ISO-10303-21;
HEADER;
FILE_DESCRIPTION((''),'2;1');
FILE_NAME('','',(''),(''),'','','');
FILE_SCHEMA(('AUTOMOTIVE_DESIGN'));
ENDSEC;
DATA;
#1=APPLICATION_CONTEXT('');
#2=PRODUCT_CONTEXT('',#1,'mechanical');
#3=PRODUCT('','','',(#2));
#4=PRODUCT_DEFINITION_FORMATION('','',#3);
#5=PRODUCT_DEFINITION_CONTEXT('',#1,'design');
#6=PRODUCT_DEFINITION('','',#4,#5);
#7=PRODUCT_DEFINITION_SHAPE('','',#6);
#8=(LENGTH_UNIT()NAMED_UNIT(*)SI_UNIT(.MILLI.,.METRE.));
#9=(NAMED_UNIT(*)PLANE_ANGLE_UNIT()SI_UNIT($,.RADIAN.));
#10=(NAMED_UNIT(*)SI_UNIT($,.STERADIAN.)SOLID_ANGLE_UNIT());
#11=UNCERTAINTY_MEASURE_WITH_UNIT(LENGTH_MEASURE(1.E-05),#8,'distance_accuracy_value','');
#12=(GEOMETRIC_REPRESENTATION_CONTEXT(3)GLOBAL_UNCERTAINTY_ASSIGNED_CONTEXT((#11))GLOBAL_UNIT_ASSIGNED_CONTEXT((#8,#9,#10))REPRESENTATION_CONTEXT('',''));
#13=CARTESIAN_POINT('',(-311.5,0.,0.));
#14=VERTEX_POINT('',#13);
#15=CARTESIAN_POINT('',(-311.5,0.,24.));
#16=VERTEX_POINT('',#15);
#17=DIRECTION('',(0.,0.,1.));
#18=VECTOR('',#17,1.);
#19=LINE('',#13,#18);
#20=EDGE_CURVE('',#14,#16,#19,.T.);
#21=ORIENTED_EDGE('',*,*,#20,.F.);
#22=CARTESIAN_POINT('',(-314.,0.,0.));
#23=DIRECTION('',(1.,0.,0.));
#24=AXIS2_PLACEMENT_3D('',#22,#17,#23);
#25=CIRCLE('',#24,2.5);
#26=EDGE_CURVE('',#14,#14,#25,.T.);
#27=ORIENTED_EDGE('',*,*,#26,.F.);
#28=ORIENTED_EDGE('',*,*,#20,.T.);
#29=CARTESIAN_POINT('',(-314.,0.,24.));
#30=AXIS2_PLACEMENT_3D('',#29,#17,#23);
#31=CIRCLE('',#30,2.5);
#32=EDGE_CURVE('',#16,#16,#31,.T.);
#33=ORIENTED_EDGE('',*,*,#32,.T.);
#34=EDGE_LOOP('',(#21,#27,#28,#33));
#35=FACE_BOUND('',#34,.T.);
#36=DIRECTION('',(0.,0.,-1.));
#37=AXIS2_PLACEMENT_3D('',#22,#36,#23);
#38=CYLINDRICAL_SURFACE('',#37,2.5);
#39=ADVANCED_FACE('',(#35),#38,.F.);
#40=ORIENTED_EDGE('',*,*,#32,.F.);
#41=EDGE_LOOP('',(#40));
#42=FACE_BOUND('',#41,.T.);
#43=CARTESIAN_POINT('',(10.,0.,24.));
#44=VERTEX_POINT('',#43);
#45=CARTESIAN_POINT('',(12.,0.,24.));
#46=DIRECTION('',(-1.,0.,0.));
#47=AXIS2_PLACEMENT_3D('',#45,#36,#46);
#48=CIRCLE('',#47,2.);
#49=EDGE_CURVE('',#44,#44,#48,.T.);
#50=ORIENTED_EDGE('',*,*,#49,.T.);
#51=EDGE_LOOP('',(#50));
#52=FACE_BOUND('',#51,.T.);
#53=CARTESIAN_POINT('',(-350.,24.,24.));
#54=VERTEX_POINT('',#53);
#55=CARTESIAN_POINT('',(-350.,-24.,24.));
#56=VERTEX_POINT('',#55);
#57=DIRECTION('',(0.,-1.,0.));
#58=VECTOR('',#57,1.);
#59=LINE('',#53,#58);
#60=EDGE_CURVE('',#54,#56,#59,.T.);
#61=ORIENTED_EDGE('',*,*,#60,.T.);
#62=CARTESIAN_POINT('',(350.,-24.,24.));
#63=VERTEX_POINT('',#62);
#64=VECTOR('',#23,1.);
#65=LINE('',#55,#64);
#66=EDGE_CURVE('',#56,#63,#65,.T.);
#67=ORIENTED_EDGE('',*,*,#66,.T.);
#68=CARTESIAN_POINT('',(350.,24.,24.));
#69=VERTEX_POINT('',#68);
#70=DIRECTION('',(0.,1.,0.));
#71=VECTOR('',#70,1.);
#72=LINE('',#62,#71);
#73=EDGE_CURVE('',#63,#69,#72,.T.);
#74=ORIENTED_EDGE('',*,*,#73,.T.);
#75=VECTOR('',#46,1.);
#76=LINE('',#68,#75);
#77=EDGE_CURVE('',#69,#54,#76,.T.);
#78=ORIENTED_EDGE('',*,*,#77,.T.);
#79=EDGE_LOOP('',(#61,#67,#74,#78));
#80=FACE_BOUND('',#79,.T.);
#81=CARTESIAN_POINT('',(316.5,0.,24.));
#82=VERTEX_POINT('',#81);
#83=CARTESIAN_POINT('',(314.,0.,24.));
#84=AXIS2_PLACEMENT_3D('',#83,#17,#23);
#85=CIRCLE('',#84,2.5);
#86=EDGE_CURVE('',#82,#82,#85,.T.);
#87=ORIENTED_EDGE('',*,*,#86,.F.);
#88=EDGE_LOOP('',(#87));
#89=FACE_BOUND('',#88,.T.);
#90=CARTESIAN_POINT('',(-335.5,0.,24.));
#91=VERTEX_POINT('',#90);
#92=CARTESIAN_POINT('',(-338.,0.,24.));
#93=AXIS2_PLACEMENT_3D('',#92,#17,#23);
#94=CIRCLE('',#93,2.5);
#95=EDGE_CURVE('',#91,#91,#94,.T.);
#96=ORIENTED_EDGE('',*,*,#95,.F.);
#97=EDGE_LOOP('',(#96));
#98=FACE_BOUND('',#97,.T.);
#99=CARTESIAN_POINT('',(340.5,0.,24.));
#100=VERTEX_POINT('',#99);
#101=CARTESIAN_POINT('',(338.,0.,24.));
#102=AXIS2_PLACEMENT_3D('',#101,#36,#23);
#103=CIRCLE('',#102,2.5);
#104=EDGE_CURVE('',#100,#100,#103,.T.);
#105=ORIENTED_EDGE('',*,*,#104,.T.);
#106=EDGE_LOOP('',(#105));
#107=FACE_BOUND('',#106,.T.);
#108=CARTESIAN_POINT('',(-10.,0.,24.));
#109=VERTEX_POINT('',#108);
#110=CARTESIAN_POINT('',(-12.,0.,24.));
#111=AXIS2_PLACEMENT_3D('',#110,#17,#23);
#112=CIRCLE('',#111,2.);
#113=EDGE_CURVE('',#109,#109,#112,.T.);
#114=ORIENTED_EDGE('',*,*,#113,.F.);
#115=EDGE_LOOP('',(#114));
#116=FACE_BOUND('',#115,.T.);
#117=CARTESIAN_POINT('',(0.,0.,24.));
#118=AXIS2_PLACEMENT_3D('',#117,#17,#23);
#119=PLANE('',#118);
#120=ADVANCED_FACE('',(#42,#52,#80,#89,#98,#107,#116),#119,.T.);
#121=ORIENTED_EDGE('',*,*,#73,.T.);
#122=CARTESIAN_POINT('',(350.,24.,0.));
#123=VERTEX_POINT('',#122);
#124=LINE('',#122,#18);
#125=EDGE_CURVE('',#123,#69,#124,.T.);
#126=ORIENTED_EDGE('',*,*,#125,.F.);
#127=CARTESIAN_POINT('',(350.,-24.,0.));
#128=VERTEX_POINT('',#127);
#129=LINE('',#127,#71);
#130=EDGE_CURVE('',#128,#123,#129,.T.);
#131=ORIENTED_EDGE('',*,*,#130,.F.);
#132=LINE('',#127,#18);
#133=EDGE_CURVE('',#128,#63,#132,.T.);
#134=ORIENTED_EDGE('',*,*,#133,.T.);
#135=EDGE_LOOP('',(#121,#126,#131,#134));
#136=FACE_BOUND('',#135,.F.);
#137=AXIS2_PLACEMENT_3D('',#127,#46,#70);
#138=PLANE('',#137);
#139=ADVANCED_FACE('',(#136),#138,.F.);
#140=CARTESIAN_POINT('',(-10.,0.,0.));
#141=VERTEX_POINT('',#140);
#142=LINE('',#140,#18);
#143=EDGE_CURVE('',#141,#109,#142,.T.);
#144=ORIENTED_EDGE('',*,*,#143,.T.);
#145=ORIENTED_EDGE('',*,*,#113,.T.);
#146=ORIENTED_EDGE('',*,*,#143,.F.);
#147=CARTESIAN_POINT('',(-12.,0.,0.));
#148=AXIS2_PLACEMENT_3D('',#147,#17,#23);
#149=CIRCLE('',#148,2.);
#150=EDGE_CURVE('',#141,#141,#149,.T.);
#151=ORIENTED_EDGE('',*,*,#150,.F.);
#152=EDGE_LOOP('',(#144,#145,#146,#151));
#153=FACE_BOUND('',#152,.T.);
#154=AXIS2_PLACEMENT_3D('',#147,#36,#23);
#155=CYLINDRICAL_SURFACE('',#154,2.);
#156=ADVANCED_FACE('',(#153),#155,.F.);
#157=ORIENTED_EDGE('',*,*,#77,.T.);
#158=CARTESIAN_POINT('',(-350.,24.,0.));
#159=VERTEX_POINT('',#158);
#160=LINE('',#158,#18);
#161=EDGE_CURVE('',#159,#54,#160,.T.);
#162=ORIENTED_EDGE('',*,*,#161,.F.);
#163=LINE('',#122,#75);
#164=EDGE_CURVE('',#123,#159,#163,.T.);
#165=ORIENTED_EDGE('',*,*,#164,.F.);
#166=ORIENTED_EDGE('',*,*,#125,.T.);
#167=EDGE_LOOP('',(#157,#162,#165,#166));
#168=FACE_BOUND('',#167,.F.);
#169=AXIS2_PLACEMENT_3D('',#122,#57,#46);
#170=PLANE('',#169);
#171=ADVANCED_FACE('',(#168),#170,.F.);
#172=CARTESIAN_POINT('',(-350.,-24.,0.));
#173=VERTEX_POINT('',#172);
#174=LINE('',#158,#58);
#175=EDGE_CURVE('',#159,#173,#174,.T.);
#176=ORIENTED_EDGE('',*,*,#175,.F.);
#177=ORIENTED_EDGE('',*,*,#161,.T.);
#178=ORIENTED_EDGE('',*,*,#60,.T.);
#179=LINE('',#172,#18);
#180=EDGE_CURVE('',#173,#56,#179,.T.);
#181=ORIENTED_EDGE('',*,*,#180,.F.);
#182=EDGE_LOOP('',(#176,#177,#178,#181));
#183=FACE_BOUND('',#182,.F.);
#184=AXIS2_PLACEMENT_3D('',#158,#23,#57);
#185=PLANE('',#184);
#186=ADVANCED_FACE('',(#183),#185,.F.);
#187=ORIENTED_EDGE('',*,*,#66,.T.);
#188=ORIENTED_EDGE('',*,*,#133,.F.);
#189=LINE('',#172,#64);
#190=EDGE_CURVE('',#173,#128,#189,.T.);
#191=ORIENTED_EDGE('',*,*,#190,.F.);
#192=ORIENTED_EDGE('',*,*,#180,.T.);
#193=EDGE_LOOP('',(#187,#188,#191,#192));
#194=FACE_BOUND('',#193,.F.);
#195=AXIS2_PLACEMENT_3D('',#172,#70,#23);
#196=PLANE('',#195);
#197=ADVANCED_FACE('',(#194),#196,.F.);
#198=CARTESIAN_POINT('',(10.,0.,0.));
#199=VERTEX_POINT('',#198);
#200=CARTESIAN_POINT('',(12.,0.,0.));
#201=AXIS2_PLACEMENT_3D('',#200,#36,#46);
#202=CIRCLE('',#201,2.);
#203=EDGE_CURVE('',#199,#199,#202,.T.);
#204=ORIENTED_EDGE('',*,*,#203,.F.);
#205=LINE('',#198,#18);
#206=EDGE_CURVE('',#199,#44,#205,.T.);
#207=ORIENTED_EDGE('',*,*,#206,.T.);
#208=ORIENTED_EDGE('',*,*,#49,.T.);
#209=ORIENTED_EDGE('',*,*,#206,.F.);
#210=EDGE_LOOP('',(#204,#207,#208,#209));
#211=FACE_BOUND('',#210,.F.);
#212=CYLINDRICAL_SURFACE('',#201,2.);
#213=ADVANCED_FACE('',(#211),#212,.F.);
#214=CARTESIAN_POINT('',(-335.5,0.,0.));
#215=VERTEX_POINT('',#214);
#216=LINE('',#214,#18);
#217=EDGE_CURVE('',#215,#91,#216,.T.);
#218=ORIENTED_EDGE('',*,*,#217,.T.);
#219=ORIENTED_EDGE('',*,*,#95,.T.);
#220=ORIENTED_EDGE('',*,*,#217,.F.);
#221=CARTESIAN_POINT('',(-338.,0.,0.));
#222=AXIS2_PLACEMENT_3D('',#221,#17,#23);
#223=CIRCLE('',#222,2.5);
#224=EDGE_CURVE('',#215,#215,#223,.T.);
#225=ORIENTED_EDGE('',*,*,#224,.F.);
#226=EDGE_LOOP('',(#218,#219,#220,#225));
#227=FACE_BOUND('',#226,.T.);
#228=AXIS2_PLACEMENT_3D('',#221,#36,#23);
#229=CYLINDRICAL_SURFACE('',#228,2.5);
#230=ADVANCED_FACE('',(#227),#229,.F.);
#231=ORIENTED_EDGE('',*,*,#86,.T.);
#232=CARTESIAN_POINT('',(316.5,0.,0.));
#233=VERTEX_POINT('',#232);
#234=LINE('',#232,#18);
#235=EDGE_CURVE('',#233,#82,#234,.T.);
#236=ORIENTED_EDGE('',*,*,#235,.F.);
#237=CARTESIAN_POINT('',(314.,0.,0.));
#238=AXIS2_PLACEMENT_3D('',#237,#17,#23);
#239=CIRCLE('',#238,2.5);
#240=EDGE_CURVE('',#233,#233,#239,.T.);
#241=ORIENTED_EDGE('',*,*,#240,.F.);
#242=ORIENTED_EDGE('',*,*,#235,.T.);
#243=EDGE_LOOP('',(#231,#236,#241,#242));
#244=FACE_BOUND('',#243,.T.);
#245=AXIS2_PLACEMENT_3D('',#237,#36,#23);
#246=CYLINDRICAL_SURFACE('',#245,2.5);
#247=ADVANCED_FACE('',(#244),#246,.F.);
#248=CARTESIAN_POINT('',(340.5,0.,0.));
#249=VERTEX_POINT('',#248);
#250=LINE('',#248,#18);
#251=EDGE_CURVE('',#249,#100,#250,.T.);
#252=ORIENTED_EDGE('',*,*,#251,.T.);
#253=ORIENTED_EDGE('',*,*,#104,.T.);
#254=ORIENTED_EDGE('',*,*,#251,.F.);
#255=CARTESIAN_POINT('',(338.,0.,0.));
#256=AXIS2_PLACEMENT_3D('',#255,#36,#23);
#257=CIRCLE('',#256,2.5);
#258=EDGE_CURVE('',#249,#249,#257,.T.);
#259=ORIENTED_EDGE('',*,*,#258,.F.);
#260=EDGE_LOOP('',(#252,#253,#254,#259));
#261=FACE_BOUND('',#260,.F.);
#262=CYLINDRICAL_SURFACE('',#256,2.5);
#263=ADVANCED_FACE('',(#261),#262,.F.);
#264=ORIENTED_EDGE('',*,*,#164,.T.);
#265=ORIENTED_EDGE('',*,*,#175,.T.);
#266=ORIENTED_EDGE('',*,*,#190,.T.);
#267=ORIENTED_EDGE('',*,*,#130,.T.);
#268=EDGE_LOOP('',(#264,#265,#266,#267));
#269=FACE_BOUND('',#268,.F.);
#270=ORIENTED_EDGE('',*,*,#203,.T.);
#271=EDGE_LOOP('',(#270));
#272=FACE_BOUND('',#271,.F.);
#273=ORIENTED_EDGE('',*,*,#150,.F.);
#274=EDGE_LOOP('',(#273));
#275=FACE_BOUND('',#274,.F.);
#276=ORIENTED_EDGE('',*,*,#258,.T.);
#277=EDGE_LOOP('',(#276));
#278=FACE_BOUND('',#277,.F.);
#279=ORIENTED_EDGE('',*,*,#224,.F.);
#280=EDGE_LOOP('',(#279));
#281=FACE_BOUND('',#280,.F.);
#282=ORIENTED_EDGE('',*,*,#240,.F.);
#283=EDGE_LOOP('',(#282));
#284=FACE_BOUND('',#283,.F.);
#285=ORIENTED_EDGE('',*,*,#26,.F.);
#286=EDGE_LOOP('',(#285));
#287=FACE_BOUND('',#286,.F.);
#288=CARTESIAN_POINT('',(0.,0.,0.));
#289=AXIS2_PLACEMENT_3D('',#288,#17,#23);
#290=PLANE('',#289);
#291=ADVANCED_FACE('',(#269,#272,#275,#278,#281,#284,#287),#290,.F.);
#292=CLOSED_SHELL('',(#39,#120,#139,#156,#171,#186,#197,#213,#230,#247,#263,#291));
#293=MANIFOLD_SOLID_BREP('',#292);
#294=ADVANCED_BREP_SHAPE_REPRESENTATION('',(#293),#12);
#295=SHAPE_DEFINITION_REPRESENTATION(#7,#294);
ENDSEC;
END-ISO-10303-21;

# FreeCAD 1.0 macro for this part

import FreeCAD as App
import Part
import Sketcher

V = App.Vector
Q = App.Units.Quantity


def add_polygon(sketch, points):
    """Adds a closed chain of lines whose ends are joined by coincident constraints."""
    first, n = sketch.GeometryCount, len(points)
    for a, b in zip(points, points[1:] + points[:1]):
        sketch.addGeometry(Part.LineSegment(App.Vector(*a, 0), App.Vector(*b, 0)), False)
    for i in range(n):
        sketch.addConstraint(Sketcher.Constraint("Coincident", first + i, 2, first + (i + 1) % n, 1))

doc = App.newDocument("Part")
body = doc.addObject("PartDesign::Body", "Body")

sketch1 = body.newObject("Sketcher::SketchObject", "Sketch")
sketch1.AttachmentSupport = (doc.getObject("XY_Plane"), [""])
sketch1.MapMode = "FlatFace"
add_polygon(sketch1, [(-350, -24), (350, -24), (350, 24), (-350, 24)])
sketch1.addGeometry(Part.Circle(V(-338, 0, 0), V(0, 0, 1), 2.5), False)
sketch1.addGeometry(Part.Circle(V(-314, 0, 0), V(0, 0, 1), 2.5), False)
sketch1.addGeometry(Part.Circle(V(-12, 0, 0), V(0, 0, 1), 2), False)
sketch1.addGeometry(Part.Circle(V(12, 0, 0), V(0, 0, 1), 2), False)
sketch1.addGeometry(Part.Circle(V(314, 0, 0), V(0, 0, 1), 2.5), False)
sketch1.addGeometry(Part.Circle(V(338, 0, 0), V(0, 0, 1), 2.5), False)
sketch1.addConstraint([
    Sketcher.Constraint("Horizontal", 0),
    Sketcher.Constraint("Vertical", 1),
    Sketcher.Constraint("Horizontal", 2),
    Sketcher.Constraint("Vertical", 3),
    Sketcher.Constraint("Equal", 4, 5),
    Sketcher.Constraint("Equal", 6, 7),
    Sketcher.Constraint("Equal", 5, 8),
    Sketcher.Constraint("Equal", 8, 9),
    Sketcher.Constraint("Symmetric", 6, 3, 7, 3, -1, 1),
    Sketcher.Constraint("Symmetric", 5, 3, 8, 3, -1, 1),
    Sketcher.Constraint("Symmetric", 4, 3, 9, 3, -1, 1),
    Sketcher.Constraint("Symmetric", 0, 2, 2, 2, -1, 1),
    Sketcher.Constraint("PointOnObject", 4, 3, -1),
    Sketcher.Constraint("PointOnObject", 5, 3, -1),
    Sketcher.Constraint("PointOnObject", 6, 3, -1),
    Sketcher.Constraint("Diameter", 4, Q("5 mm")),
    Sketcher.Constraint("Diameter", 6, Q("4 mm")),
    Sketcher.Constraint("DistanceX", 0, 1, 0, 2, Q("700 mm")),
    Sketcher.Constraint("DistanceY", 1, 1, 1, 2, Q("48 mm")),
    Sketcher.Constraint("DistanceX", 4, 3, -1, 1, Q("338 mm")),
    Sketcher.Constraint("DistanceX", 5, 3, -1, 1, Q("314 mm")),
    Sketcher.Constraint("DistanceX", 6, 3, -1, 1, Q("12 mm")),
])
pad1 = body.newObject("PartDesign::Pad", "Pad")
pad1.Profile = sketch1
pad1.Length = 24

doc.recompute()
